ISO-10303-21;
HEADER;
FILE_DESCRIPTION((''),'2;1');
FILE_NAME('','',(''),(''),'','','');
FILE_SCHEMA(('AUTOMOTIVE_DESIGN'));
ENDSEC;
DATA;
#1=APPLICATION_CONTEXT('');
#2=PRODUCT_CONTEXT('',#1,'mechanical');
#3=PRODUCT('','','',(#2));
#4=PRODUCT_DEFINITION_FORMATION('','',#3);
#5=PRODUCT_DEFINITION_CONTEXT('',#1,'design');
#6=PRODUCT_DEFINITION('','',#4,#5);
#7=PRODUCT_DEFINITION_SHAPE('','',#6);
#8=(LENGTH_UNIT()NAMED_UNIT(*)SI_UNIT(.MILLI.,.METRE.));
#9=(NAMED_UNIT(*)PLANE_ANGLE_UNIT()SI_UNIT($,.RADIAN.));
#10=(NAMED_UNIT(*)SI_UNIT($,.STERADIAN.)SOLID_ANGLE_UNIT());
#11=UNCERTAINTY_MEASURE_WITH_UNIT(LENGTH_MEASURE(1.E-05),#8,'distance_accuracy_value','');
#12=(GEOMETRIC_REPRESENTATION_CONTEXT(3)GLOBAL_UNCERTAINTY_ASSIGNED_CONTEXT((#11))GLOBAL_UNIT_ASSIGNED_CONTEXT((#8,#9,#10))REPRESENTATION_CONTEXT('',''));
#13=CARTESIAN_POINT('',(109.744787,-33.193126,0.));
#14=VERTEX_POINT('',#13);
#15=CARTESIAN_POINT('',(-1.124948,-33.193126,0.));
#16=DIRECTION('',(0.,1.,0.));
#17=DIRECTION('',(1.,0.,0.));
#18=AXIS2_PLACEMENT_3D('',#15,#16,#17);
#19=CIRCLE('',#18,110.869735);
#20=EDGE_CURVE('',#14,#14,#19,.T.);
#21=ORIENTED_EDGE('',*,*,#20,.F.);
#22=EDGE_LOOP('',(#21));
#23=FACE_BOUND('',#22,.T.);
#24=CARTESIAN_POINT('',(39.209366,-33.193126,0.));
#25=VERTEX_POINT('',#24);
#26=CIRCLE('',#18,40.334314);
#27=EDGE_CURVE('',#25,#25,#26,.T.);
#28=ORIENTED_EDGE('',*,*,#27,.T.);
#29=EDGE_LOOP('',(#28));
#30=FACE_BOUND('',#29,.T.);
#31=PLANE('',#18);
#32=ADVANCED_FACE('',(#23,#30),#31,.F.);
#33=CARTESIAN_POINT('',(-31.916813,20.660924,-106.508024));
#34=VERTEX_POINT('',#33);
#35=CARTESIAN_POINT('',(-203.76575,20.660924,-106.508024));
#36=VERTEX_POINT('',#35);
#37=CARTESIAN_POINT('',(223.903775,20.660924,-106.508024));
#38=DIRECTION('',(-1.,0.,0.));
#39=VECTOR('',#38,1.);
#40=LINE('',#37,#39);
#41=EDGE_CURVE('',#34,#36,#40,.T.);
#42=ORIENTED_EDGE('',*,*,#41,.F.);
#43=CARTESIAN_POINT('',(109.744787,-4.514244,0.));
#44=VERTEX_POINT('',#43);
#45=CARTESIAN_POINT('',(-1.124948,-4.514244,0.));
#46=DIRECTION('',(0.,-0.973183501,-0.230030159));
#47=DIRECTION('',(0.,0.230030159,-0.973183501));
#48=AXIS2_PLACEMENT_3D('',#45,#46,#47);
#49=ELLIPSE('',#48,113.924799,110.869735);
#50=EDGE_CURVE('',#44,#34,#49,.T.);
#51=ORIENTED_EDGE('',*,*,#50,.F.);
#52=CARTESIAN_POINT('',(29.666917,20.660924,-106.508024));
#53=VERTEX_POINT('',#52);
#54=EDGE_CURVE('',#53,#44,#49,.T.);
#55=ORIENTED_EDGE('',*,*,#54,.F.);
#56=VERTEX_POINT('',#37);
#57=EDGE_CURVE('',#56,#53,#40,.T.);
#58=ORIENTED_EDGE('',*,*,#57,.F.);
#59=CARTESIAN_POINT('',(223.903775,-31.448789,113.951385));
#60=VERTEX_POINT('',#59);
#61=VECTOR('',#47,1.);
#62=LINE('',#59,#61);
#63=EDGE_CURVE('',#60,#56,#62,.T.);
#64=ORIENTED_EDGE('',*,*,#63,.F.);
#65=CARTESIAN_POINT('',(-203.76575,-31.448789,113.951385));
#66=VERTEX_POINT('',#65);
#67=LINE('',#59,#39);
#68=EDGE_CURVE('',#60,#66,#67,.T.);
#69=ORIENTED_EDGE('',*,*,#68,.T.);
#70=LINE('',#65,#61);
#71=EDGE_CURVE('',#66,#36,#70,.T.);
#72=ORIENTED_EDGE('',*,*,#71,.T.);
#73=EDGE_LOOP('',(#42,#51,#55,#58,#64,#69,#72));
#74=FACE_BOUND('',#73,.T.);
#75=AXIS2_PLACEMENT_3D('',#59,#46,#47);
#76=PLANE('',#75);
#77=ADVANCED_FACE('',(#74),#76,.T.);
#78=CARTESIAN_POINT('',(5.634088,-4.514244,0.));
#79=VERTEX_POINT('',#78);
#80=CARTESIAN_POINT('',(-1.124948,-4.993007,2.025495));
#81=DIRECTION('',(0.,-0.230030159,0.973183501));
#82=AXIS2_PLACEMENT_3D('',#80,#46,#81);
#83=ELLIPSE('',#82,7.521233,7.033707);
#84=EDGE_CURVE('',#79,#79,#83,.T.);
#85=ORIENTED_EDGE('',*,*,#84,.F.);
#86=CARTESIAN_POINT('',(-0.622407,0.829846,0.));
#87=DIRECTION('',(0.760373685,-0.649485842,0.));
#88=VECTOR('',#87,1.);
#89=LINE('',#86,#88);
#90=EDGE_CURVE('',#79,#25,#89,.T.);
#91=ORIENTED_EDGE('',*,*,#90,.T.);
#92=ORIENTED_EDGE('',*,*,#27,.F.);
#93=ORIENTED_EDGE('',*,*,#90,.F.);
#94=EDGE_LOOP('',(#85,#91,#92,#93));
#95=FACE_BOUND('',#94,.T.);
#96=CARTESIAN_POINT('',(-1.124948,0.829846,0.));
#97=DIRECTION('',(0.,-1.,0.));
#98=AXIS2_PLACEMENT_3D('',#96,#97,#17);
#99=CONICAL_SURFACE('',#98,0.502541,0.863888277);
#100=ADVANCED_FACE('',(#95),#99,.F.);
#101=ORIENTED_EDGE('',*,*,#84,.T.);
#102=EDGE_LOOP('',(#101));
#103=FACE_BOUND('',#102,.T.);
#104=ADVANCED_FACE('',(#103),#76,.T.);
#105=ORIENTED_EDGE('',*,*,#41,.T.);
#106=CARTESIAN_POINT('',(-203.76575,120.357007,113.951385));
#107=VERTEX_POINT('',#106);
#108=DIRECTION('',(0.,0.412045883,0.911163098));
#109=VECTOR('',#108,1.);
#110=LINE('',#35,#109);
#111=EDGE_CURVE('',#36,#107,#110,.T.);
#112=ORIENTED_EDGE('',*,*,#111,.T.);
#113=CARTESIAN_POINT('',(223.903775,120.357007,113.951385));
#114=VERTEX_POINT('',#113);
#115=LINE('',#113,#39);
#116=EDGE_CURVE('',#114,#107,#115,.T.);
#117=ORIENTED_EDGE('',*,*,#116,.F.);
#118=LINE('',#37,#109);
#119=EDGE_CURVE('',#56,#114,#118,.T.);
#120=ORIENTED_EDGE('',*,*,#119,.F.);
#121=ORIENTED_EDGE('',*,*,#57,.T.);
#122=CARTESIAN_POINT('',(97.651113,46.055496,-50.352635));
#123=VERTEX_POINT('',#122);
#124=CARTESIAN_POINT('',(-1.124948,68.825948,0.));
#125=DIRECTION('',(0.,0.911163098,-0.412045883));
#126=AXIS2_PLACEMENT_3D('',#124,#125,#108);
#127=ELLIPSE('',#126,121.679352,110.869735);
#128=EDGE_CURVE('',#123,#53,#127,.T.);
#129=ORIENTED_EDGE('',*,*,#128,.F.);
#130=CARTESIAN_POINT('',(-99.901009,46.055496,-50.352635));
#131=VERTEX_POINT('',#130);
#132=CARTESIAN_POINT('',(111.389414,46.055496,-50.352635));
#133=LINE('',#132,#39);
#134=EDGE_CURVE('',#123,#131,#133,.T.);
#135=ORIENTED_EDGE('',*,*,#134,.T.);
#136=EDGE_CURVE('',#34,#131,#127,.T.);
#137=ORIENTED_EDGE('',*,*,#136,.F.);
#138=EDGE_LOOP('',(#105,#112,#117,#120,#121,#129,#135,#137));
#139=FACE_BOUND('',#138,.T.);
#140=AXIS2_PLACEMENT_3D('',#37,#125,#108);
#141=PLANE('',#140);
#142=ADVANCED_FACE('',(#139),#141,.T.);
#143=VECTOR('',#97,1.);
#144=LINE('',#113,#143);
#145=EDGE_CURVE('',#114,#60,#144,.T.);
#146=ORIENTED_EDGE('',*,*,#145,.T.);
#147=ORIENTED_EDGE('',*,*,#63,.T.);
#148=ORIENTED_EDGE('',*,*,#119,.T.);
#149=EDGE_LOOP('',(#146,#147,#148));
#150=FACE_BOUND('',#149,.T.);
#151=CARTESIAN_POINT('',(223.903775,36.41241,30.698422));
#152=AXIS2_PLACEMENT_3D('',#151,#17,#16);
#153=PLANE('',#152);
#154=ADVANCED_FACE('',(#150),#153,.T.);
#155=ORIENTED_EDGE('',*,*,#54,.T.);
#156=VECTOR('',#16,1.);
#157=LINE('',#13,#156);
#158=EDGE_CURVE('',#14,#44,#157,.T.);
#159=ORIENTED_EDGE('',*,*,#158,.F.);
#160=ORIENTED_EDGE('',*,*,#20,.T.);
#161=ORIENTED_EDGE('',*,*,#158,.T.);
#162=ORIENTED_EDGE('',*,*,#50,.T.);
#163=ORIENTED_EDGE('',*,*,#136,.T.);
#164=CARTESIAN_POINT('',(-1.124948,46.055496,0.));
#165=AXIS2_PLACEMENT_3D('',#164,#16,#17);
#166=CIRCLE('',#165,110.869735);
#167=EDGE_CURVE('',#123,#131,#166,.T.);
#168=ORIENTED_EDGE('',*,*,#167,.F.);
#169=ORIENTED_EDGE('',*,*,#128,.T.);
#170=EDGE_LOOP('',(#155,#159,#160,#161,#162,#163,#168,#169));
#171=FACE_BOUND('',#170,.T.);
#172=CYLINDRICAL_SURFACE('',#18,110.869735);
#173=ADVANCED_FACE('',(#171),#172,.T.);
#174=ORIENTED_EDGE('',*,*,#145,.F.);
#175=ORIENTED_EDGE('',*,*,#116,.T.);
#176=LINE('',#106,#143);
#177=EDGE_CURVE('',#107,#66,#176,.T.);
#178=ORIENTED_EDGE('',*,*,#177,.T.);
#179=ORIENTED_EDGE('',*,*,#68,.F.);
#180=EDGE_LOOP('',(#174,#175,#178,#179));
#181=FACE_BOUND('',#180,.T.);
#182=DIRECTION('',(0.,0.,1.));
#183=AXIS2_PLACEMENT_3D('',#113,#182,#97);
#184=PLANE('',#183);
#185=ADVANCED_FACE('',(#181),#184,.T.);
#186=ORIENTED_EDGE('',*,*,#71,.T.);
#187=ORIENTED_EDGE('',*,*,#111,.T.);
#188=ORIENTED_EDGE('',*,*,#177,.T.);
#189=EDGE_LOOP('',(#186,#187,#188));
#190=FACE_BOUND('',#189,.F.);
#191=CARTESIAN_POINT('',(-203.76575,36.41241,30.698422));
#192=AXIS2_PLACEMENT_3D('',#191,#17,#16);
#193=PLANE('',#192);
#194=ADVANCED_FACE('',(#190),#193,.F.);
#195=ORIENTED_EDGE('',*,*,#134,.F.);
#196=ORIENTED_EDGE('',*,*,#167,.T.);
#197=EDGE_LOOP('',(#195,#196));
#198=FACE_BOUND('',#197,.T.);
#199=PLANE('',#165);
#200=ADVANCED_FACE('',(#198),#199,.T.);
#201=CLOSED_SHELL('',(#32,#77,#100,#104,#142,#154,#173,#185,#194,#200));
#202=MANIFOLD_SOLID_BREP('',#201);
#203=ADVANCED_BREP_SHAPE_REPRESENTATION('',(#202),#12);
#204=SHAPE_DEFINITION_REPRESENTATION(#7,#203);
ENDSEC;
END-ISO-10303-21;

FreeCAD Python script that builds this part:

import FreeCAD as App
import Part
import Sketcher

V = App.Vector
Q = App.Units.Quantity


def add_polygon(sketch, points):
    """Adds a closed chain of lines whose ends are joined by coincident constraints."""
    first, n = sketch.GeometryCount, len(points)
    for a, b in zip(points, points[1:] + points[:1]):
        sketch.addGeometry(Part.LineSegment(App.Vector(*a, 0), App.Vector(*b, 0)), False)
    for i in range(n):
        sketch.addConstraint(Sketcher.Constraint("Coincident", first + i, 2, first + (i + 1) % n, 1))

doc = App.newDocument("Part")
body = doc.addObject("PartDesign::Body", "Body")

# Sketch on XY plane
sketch1 = body.newObject("Sketcher::SketchObject", "Sketch")
sketch1.AttachmentSupport = (doc.getObject("XY_Plane"), [""])
sketch1.MapMode = "FlatFace"
add_polygon(sketch1, [(46, 46), (-1, 1), (39, -33), (110, -33), (110, 46)])  # lines 0-4
sketch1.addGeometry(Part.LineSegment(V(-1, -33, 0), V(-1, 46, 0)), True)  # axis
sketch1.addConstraint([
    Sketcher.Constraint("Horizontal", 2),
    Sketcher.Constraint("Vertical", 3),
    Sketcher.Constraint("Horizontal", 4),
    Sketcher.Constraint("Vertical", 5),
    Sketcher.Constraint("Horizontal", 2, 2, 5, 1),
    Sketcher.Constraint("Horizontal", 4, 2, 5, 2),
    Sketcher.Constraint("DistanceX", 2, 1, 2, 2, Q("70.535421 mm")),
    Sketcher.Constraint("DistanceY", 3, 1, 3, 2, Q("79.248622 mm")),
    Sketcher.Constraint("Distance", 0, Q("65.292338 mm")),
    Sketcher.Constraint("Distance", 1, Q("52.384471 mm")),
    Sketcher.Constraint("DistanceX", 4, 2, 4, 1, Q("63.274413 mm")),
    Sketcher.Constraint("DistanceX", 5, 1, -1, 1, Q("1.124948 mm")),
    Sketcher.Constraint("DistanceX", 5, 1, 0, 2, Q("0.502541 mm")),
    Sketcher.Constraint("DistanceY", -1, 1, 0, 2, Q("0.829846 mm")),
])
revolution = body.newObject("PartDesign::Revolution", "Revolution")
revolution.Profile = sketch1
revolution.ReferenceAxis = (sketch1, ["Axis0"])
revolution.Angle = 360

# Sketch on YZ plane
sketch2 = body.newObject("Sketcher::SketchObject", "Sketch001")
sketch2.AttachmentSupport = (doc.getObject("YZ_Plane"), [""])
sketch2.MapMode = "FlatFace"
sketch2.AttachmentOffset = App.Placement(V(0, 0, 223.903775), App.Rotation())
add_polygon(sketch2, [(120, 114), (-31, 114), (21, -107)])  # lines 0-2
sketch2.addConstraint([
    Sketcher.Constraint("Horizontal", 0),
    Sketcher.Constraint("Distance", 2, Q("241.953839 mm")),
    Sketcher.Constraint("DistanceX", 0, 2, 0, 1, Q("151.805796 mm")),
    Sketcher.Constraint("DistanceX", 0, 2, -1, 1, Q("31.448789 mm")),
    Sketcher.Constraint("DistanceY", 1, 2, 0, 2, Q("220.459409 mm")),
    Sketcher.Constraint("DistanceY", -1, 1, 0, 2, Q("113.951385 mm")),
])
pad1 = body.newObject("PartDesign::Pad", "Pad")
pad1.Profile = sketch2
pad1.Length = 427.669525
pad1.Reversed = True

doc.recompute()
